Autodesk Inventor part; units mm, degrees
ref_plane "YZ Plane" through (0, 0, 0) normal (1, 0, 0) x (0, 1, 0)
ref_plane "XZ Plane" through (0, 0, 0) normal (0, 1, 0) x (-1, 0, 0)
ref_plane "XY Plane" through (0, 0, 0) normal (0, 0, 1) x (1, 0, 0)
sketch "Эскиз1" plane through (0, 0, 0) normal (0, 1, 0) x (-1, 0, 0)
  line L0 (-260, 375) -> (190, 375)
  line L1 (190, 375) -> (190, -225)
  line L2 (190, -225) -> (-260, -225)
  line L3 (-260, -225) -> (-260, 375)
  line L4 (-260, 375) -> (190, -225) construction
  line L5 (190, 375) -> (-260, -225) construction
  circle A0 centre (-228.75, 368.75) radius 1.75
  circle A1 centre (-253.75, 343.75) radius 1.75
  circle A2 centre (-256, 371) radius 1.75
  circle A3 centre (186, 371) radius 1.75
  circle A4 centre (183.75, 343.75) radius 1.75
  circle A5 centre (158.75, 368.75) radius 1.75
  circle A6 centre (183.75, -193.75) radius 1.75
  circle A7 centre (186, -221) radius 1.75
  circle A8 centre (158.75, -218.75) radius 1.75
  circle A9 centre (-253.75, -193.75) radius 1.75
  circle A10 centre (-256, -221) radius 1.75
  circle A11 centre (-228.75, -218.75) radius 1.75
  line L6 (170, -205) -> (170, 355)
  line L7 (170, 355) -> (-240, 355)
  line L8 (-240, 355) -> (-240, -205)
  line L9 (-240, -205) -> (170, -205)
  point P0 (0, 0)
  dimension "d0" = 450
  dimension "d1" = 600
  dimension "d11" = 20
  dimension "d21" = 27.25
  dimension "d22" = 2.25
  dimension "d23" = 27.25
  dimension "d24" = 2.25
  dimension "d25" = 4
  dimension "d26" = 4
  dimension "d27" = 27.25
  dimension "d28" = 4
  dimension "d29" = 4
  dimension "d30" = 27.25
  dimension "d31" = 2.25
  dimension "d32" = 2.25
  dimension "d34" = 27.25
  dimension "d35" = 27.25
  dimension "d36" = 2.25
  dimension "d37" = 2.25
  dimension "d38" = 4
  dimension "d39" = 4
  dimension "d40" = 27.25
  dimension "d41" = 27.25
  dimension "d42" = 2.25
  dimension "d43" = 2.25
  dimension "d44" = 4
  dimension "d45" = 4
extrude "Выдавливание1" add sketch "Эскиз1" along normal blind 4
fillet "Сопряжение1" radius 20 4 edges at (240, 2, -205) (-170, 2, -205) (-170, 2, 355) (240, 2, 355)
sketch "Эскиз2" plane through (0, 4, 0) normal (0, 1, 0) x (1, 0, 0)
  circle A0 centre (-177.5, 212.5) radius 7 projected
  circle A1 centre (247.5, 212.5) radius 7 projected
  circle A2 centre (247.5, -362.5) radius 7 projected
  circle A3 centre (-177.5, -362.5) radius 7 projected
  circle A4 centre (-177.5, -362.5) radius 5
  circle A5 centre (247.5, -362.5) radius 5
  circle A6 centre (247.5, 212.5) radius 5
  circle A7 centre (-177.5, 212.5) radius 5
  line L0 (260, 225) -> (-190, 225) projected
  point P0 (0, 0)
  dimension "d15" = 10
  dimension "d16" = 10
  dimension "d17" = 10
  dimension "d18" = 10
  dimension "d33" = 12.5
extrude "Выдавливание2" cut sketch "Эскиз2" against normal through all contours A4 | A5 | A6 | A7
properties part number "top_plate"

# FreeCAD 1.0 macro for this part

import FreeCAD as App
import Part
import Sketcher
from FreeCAD import Vector
Q = App.Units.Quantity


def edges_at(feature, points):
    """Names of the edges that pass closest to the given points."""
    edges = feature.Shape.Edges
    near = lambda p: min(range(len(edges)), key=lambda i: edges[i].distToShape(Part.Vertex(*p))[0])
    return sorted({f"Edge{near(p) + 1}" for p in points})

doc = App.newDocument("Part")
body = doc.addObject("PartDesign::Body", "Body")

sketch1 = body.newObject("Sketcher::SketchObject", "Sketch")
sketch1.AttachmentSupport = (doc.getObject("XZ_Plane"), [""])
sketch1.MapMode = "FlatFace"
sketch1.addGeometry([
    Part.LineSegment(Vector(-190, 375, 0), Vector(260, 375, 0)),
    Part.LineSegment(Vector(260, 375, 0), Vector(260, -225, 0)),
    Part.LineSegment(Vector(260, -225, 0), Vector(-190, -225, 0)),
    Part.LineSegment(Vector(-190, -225, 0), Vector(-190, 375, 0)),
    Part.Circle(Vector(256, -221, 0), Vector(0, 0, 1), 1.75),
    Part.Circle(Vector(253.75, -193.75, 0), Vector(0, 0, 1), 1.75),
    Part.Circle(Vector(228.75, -218.75, 0), Vector(0, 0, 1), 1.75),
    Part.Circle(Vector(-158.75, -218.75, 0), Vector(0, 0, 1), 1.75),
    Part.Circle(Vector(-186, -221, 0), Vector(0, 0, 1), 1.75),
    Part.Circle(Vector(-183.75, -193.75, 0), Vector(0, 0, 1), 1.75),
    Part.Circle(Vector(253.75, 343.75, 0), Vector(0, 0, 1), 1.75),
    Part.Circle(Vector(256, 371, 0), Vector(0, 0, 1), 1.75),
    Part.Circle(Vector(228.75, 368.75, 0), Vector(0, 0, 1), 1.75),
    Part.LineSegment(Vector(-170, 355, 0), Vector(-170, -205, 0)),
    Part.LineSegment(Vector(-170, -205, 0), Vector(240, -205, 0)),
    Part.LineSegment(Vector(240, -205, 0), Vector(240, 355, 0)),
    Part.LineSegment(Vector(240, 355, 0), Vector(-170, 355, 0)),
    Part.Circle(Vector(-158.75, 368.75, 0), Vector(0, 0, 1), 1.75),
    Part.Circle(Vector(-183.75, 343.75, 0), Vector(0, 0, 1), 1.75),
    Part.Circle(Vector(-186, 371, 0), Vector(0, 0, 1), 1.75),
], False)
sketch1.addConstraint([
    Sketcher.Constraint("Coincident", 0, 2, 1, 1),
    Sketcher.Constraint("Coincident", 1, 2, 2, 1),
    Sketcher.Constraint("Coincident", 2, 2, 3, 1),
    Sketcher.Constraint("Coincident", 3, 2, 0, 1),
    Sketcher.Constraint("Coincident", 13, 2, 14, 1),
    Sketcher.Constraint("Coincident", 14, 2, 15, 1),
    Sketcher.Constraint("Coincident", 15, 2, 16, 1),
    Sketcher.Constraint("Coincident", 16, 2, 13, 1),
    Sketcher.Constraint("Horizontal", 0),
    Sketcher.Constraint("Vertical", 1),
    Sketcher.Constraint("Horizontal", 2),
    Sketcher.Constraint("Vertical", 3),
    Sketcher.Constraint("Vertical", 13),
    Sketcher.Constraint("Horizontal", 14),
    Sketcher.Constraint("Vertical", 15),
    Sketcher.Constraint("Horizontal", 16),
    Sketcher.Constraint("Equal", 4, 5),
    Sketcher.Constraint("Equal", 5, 6),
    Sketcher.Constraint("Equal", 6, 7),
    Sketcher.Constraint("Equal", 7, 8),
    Sketcher.Constraint("Equal", 8, 9),
    Sketcher.Constraint("Equal", 9, 10),
    Sketcher.Constraint("Equal", 10, 11),
    Sketcher.Constraint("Equal", 11, 12),
    Sketcher.Constraint("Equal", 12, 17),
    Sketcher.Constraint("Equal", 17, 18),
    Sketcher.Constraint("Equal", 18, 19),
    Sketcher.Constraint("Horizontal", 6, 3, 7, 3),
    Sketcher.Constraint("Horizontal", 4, 3, 8, 3),
    Sketcher.Constraint("Horizontal", 5, 3, 9, 3),
    Sketcher.Constraint("Horizontal", 12, 3, 17, 3),
    Sketcher.Constraint("Horizontal", 10, 3, 18, 3),
    Sketcher.Constraint("Horizontal", 11, 3, 19, 3),
    Sketcher.Constraint("Vertical", 5, 3, 10, 3),
    Sketcher.Constraint("Vertical", 4, 3, 11, 3),
    Sketcher.Constraint("Vertical", 6, 3, 12, 3),
    Sketcher.Constraint("Vertical", 7, 3, 17, 3),
    Sketcher.Constraint("Vertical", 9, 3, 18, 3),
    Sketcher.Constraint("Vertical", 8, 3, 19, 3),
    Sketcher.Constraint("DistanceX", 0, 1, 0, 2, Q("450 mm")),
    Sketcher.Constraint("DistanceY", 1, 2, 1, 1, Q("600 mm")),
    Sketcher.Constraint("DistanceX", 11, 3, 0, 2, Q("4 mm")),
    Sketcher.Constraint("DistanceY", 11, 3, 0, 2, Q("4 mm")),
    Sketcher.Constraint("DistanceY", 1, 2, 4, 3, Q("4 mm")),
    Sketcher.Constraint("DistanceX", 2, 2, 8, 3, Q("4 mm")),
    Sketcher.Constraint("DistanceX", 2, 2, 13, 2, Q("20 mm")),
    Sketcher.Constraint("DistanceY", 2, 2, 13, 2, Q("20 mm")),
    Sketcher.Constraint("DistanceX", 14, 2, 1, 2, Q("20 mm")),
    Sketcher.Constraint("DistanceY", 15, 2, 0, 2, Q("20 mm")),
    Sketcher.Constraint("Diameter", 4, Q("3.5 mm")),
    Sketcher.Constraint("DistanceX", 5, 3, 4, 3, Q("2.25 mm")),
    Sketcher.Constraint("DistanceY", 4, 3, 5, 3, Q("27.25 mm")),
    Sketcher.Constraint("DistanceX", 6, 3, 4, 3, Q("27.25 mm")),
    Sketcher.Constraint("DistanceY", 4, 3, 6, 3, Q("2.25 mm")),
    Sketcher.Constraint("DistanceX", 8, 3, 7, 3, Q("27.25 mm")),
    Sketcher.Constraint("DistanceX", 8, 3, 9, 3, Q("2.25 mm")),
    Sketcher.Constraint("DistanceY", 10, 3, 11, 3, Q("27.25 mm")),
    Sketcher.Constraint("DistanceY", 12, 3, 11, 3, Q("2.25 mm")),
    Sketcher.Constraint("DistanceX", -1, 1, 4, 3, Q("256 mm")),
    Sketcher.Constraint("DistanceY", 4, 3, -1, 1, Q("221 mm")),
])
pad1 = body.newObject("PartDesign::Pad", "Pad")
pad1.Profile = sketch1
pad1.Length = 4
pad1.Reversed = True
doc.recompute()

fillet = body.newObject("PartDesign::Fillet", "Fillet")
fillet.Base = (pad1, edges_at(pad1, [
    (240, 2, -205),
    (-170, 2, -205),
    (-170, 2, 355),
    (240, 2, 355),
]))
fillet.Radius = 20

sketch2 = body.newObject("Sketcher::SketchObject", "Sketch001")
sketch2.AttachmentSupport = (doc.getObject("XZ_Plane"), [""])
sketch2.MapMode = "FlatFace"
sketch2.AttachmentOffset = App.Placement(Vector(0, 0, -4), App.Rotation())
sketch2.addGeometry([
    Part.Circle(Vector(-177.5, 362.5, 0), Vector(0, 0, 1), 5),
    Part.Circle(Vector(247.5, 362.5, 0), Vector(0, 0, 1), 5),
    Part.Circle(Vector(247.5, -212.5, 0), Vector(0, 0, 1), 5),
    Part.Circle(Vector(-177.5, -212.5, 0), Vector(0, 0, 1), 5),
], False)
sketch2.addConstraint([
    Sketcher.Constraint("Equal", 0, 1),
    Sketcher.Constraint("Equal", 1, 2),
    Sketcher.Constraint("Equal", 2, 3),
    Sketcher.Constraint("Horizontal", 0, 3, 1, 3),
    Sketcher.Constraint("Horizontal", 2, 3, 3, 3),
    Sketcher.Constraint("Vertical", 1, 3, 2, 3),
    Sketcher.Constraint("Vertical", 0, 3, 3, 3),
    Sketcher.Constraint("Diameter", 0, Q("10 mm")),
    Sketcher.Constraint("DistanceX", 0, 3, 1, 3, Q("425 mm")),
    Sketcher.Constraint("DistanceY", 2, 3, 1, 3, Q("575 mm")),
    Sketcher.Constraint("DistanceX", 0, 3, -1, 1, Q("177.5 mm")),
    Sketcher.Constraint("DistanceY", -1, 1, 0, 3, Q("362.5 mm")),
])
pocket1 = body.newObject("PartDesign::Pocket", "Pocket")
pocket1.Profile = sketch2
pocket1.Type = "ThroughAll"
pocket1.Reversed = True

doc.recompute()
